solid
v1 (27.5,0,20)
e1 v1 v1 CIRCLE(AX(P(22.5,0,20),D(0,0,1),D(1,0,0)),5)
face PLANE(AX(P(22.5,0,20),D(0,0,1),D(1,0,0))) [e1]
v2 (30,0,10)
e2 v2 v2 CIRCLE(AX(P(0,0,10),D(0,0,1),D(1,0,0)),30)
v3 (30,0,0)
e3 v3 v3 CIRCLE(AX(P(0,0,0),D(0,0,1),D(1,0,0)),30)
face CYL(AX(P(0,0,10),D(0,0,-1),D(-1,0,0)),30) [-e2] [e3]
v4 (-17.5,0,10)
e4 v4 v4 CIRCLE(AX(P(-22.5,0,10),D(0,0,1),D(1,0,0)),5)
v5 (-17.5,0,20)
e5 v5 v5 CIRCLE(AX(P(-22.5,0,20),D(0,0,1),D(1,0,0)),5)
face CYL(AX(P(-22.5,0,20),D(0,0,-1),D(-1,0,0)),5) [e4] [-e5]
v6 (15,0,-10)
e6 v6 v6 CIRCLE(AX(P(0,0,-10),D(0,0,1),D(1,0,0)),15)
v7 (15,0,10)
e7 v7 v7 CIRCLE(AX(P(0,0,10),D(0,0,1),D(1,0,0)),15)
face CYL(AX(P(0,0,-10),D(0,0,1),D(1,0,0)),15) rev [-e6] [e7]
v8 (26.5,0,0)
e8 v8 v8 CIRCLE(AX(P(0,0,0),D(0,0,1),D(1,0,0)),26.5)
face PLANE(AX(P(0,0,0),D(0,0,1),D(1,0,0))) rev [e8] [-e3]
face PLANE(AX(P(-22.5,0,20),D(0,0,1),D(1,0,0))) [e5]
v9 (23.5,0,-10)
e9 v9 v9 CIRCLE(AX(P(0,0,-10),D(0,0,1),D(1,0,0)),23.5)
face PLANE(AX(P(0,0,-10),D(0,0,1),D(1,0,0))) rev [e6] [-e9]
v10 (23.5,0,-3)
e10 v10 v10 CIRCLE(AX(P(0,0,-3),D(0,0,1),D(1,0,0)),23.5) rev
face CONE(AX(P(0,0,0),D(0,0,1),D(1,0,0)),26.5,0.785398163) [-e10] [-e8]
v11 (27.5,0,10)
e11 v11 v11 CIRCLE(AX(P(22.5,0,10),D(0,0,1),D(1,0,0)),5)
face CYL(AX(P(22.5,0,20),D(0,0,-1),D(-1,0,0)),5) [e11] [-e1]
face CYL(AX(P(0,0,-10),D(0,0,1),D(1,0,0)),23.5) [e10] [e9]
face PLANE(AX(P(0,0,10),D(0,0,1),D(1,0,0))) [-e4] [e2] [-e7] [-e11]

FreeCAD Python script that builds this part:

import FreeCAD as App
import Part
import Sketcher
from FreeCAD import Vector
Q = App.Units.Quantity


def edges_at(feature, points):
    """Names of the edges that pass closest to the given points."""
    edges = feature.Shape.Edges
    near = lambda p: min(range(len(edges)), key=lambda i: edges[i].distToShape(Part.Vertex(*p))[0])
    return sorted({f"Edge{near(p) + 1}" for p in points})

doc = App.newDocument("Part")
body = doc.addObject("PartDesign::Body", "Body")

# Sketch on XY plane
sketch1 = body.newObject("Sketcher::SketchObject", "Sketch")
sketch1.AttachmentSupport = (doc.getObject("XY_Plane"), [""])
sketch1.MapMode = "FlatFace"
sketch1.addGeometry(Part.Circle(Vector(0, 0, 0), Vector(0, 0, 1), 24), False)
sketch1.addGeometry(Part.Circle(Vector(0, 0, 0), Vector(0, 0, 1), 15), False)
sketch1.addConstraint(Sketcher.Constraint("Coincident", 0, 3, -1, 1))
sketch1.addConstraint(Sketcher.Constraint("Coincident", 1, 3, -1, 1))
sketch1.addConstraint(Sketcher.Constraint("Diameter", 0, Q("47 mm")))
sketch1.addConstraint(Sketcher.Constraint("Diameter", 1, Q("30 mm")))
pad1 = body.newObject("PartDesign::Pad", "Pad")
pad1.Profile = sketch1
pad1.Length = 10
pad1.Reversed = True

# Sketch on XY plane
sketch2 = body.newObject("Sketcher::SketchObject", "Sketch001")
sketch2.AttachmentSupport = (doc.getObject("XY_Plane"), [""])
sketch2.MapMode = "FlatFace"
sketch2.addGeometry(Part.Circle(Vector(0, 0, 0), Vector(0, 0, 1), 30), False)
sketch2.addGeometry(Part.Circle(Vector(0, 0, 0), Vector(0, 0, 1), 15), False)
sketch2.addConstraint(Sketcher.Constraint("Coincident", 0, 3, -1, 1))
sketch2.addConstraint(Sketcher.Constraint("Coincident", 1, 3, -1, 1))
sketch2.addConstraint(Sketcher.Constraint("Diameter", 0, Q("60 mm")))
sketch2.addConstraint(Sketcher.Constraint("Diameter", 1, Q("30 mm")))
pad2 = body.newObject("PartDesign::Pad", "Pad001")
pad2.Profile = sketch2
pad2.Length = 10
doc.recompute()

chamfer = body.newObject("PartDesign::Chamfer", "Chamfer")
chamfer.Base = (pad2, edges_at(pad2, [(-23.5, 0, 0)]))
chamfer.Size = 3

# Sketch on XY plane
sketch3 = body.newObject("Sketcher::SketchObject", "Sketch002")
sketch3.AttachmentSupport = (doc.getObject("XY_Plane"), [""])
sketch3.MapMode = "FlatFace"
sketch3.AttachmentOffset = App.Placement(Vector(0, 0, 10), App.Rotation())
sketch3.addGeometry(Part.Circle(Vector(-22, 0, 0), Vector(0, 0, 1), 5), False)
sketch3.addGeometry(Part.Circle(Vector(22, 0, 0), Vector(0, 0, 1), 5), False)
sketch3.addConstraint(Sketcher.Constraint("Equal", 0, 1))
sketch3.addConstraint(Sketcher.Constraint("Symmetric", 0, 3, 1, 3, -1, 1))
sketch3.addConstraint(Sketcher.Constraint("PointOnObject", 0, 3, -1))
sketch3.addConstraint(Sketcher.Constraint("Diameter", 0, Q("10 mm")))
sketch3.addConstraint(Sketcher.Constraint("DistanceX", 0, 3, 1, 3, Q("45 mm")))
pad3 = body.newObject("PartDesign::Pad", "Pad002")
pad3.Profile = sketch3
pad3.Length = 10

doc.recompute()
